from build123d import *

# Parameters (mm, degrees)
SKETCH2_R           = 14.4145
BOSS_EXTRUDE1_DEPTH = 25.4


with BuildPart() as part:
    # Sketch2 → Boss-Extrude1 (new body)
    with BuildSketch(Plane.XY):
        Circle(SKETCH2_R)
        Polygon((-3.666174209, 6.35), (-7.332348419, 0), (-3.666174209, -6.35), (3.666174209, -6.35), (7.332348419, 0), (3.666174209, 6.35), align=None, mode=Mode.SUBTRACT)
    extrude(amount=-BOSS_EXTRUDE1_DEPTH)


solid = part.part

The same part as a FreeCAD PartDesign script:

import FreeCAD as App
import Part
import Sketcher

V = App.Vector
Q = App.Units.Quantity

doc = App.newDocument("Part")
body = doc.addObject("PartDesign::Body", "Body")

# Sketch on XY plane
sketch1 = body.newObject("Sketcher::SketchObject", "Sketch")
sketch1.AttachmentSupport = (doc.getObject("XY_Plane"), [""])
sketch1.MapMode = "FlatFace"
sketch1.addGeometry(Part.Circle(V(0, 0, 0), V(0, 0, 1), 14.4145), False)
sketch1.addGeometry(Part.LineSegment(V(-7.332348, 0, 0), V(-3.666174, 6.35, 0)), False)
sketch1.addGeometry(Part.LineSegment(V(-3.666174, 6.35, 0), V(3.666174, 6.35, 0)), False)
sketch1.addGeometry(Part.LineSegment(V(3.666174, 6.35, 0), V(7.332348, 0, 0)), False)
sketch1.addGeometry(Part.LineSegment(V(7.332348, 0, 0), V(3.666174, -6.35, 0)), False)
sketch1.addGeometry(Part.LineSegment(V(3.666174, -6.35, 0), V(-3.666174, -6.35, 0)), False)
sketch1.addGeometry(Part.LineSegment(V(-3.666174, -6.35, 0), V(-7.332348, 0, 0)), False)
sketch1.addConstraint(Sketcher.Constraint("Coincident", 1, 2, 2, 1))
sketch1.addConstraint(Sketcher.Constraint("Coincident", 2, 2, 3, 1))
sketch1.addConstraint(Sketcher.Constraint("Coincident", 3, 2, 4, 1))
sketch1.addConstraint(Sketcher.Constraint("Coincident", 4, 2, 5, 1))
sketch1.addConstraint(Sketcher.Constraint("Coincident", 5, 2, 6, 1))
sketch1.addConstraint(Sketcher.Constraint("Coincident", 6, 2, 1, 1))
sketch1.addConstraint(Sketcher.Constraint("Horizontal", 2))
sketch1.addConstraint(Sketcher.Constraint("Horizontal", 5))
sketch1.addConstraint(Sketcher.Constraint("Coincident", 0, 3, -1, 1))
sketch1.addConstraint(Sketcher.Constraint("Symmetric", 1, 2, 4, 2, -1, 1))
sketch1.addConstraint(Sketcher.Constraint("Symmetric", 3, 2, 6, 2, -1, 1))
sketch1.addConstraint(Sketcher.Constraint("PointOnObject", 3, 2, -1))
sketch1.addConstraint(Sketcher.Constraint("Parallel", 3, 6))
sketch1.addConstraint(Sketcher.Constraint("Vertical", 2, 2, 4, 2))
sketch1.addConstraint(Sketcher.Constraint("Diameter", 0, Q("1.135 in")))
sketch1.addConstraint(Sketcher.Constraint("Angle", 1, Q("60 deg")))
sketch1.addConstraint(Sketcher.Constraint("DistanceY", 4, 2, 2, 2, Q("0.5 in")))
sketch1.addConstraint(Sketcher.Constraint("DistanceX", 2, 1, 2, 2, 7.332348))
pad1 = body.newObject("PartDesign::Pad", "Pad")
pad1.Profile = sketch1
pad1.Length = Q("1 in")
pad1.Reversed = True

doc.recompute()
